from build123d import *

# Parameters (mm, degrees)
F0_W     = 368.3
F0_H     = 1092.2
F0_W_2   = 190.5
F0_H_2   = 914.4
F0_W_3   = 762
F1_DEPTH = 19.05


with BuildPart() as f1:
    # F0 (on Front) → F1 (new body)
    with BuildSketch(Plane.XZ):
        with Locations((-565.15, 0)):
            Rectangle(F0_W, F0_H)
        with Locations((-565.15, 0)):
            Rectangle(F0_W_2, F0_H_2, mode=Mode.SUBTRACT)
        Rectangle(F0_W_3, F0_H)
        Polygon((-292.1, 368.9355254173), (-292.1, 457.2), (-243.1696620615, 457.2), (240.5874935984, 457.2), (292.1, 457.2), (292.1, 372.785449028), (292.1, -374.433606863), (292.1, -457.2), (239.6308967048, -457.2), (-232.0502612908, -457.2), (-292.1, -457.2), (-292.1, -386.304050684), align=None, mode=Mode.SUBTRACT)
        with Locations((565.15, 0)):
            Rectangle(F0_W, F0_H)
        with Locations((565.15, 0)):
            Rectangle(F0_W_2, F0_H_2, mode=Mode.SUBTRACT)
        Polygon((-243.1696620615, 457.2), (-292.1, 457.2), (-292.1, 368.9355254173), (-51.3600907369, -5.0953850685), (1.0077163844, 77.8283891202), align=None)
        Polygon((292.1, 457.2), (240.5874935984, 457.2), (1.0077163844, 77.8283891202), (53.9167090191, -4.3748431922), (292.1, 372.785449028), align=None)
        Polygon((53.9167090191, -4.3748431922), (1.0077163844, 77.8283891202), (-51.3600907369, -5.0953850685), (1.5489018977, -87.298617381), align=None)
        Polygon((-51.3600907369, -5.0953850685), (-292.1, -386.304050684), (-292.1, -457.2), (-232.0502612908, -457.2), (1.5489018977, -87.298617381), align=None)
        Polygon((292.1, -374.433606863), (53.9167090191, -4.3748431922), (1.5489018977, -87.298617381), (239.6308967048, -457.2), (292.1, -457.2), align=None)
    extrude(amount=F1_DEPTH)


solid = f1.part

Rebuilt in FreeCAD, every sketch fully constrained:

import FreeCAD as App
import Part
import Sketcher
from FreeCAD import Vector
Q = App.Units.Quantity

doc = App.newDocument("Part")
body = doc.addObject("PartDesign::Body", "Body")

sketch1 = body.newObject("Sketcher::SketchObject", "Sketch")
sketch1.AttachmentSupport = (doc.getObject("XZ_Plane"), [""])
sketch1.MapMode = "FlatFace"
sketch1.addGeometry([
    Part.LineSegment(Vector(-749, 546, 0), Vector(-749, -546, 0)),
    Part.LineSegment(Vector(-749, -546, 0), Vector(749, -546, 0)),
    Part.LineSegment(Vector(749, -546, 0), Vector(749, 546, 0)),
    Part.LineSegment(Vector(749, 546, 0), Vector(-749, 546, 0)),
    Part.LineSegment(Vector(-292, 369, 0), Vector(-51, -5, 0)),
    Part.LineSegment(Vector(-51, -5, 0), Vector(-292, -386, 0)),
    Part.LineSegment(Vector(-292, -386, 0), Vector(-292, 369, 0)),
    Part.LineSegment(Vector(292, 373, 0), Vector(292, -374, 0)),
    Part.LineSegment(Vector(292, -374, 0), Vector(54, -4, 0)),
    Part.LineSegment(Vector(54, -4, 0), Vector(292, 373, 0)),
    Part.LineSegment(Vector(240, -457, 0), Vector(-232, -457, 0)),
    Part.LineSegment(Vector(-232, -457, 0), Vector(2, -87, 0)),
    Part.LineSegment(Vector(2, -87, 0), Vector(240, -457, 0)),
    Part.LineSegment(Vector(-470, -457, 0), Vector(-660, -457, 0)),
    Part.LineSegment(Vector(-660, -457, 0), Vector(-660, 457, 0)),
    Part.LineSegment(Vector(-660, 457, 0), Vector(-470, 457, 0)),
    Part.LineSegment(Vector(-470, 457, 0), Vector(-470, -457, 0)),
    Part.LineSegment(Vector(241, 457, 0), Vector(1, 78, 0)),
    Part.LineSegment(Vector(1, 78, 0), Vector(-243, 457, 0)),
    Part.LineSegment(Vector(-243, 457, 0), Vector(241, 457, 0)),
    Part.LineSegment(Vector(660, -457, 0), Vector(470, -457, 0)),
    Part.LineSegment(Vector(470, -457, 0), Vector(470, 457, 0)),
    Part.LineSegment(Vector(470, 457, 0), Vector(660, 457, 0)),
    Part.LineSegment(Vector(660, 457, 0), Vector(660, -457, 0)),
], False)
sketch1.addConstraint([
    Sketcher.Constraint("Coincident", 0, 2, 1, 1),
    Sketcher.Constraint("Coincident", 1, 2, 2, 1),
    Sketcher.Constraint("Coincident", 2, 2, 3, 1),
    Sketcher.Constraint("Coincident", 3, 2, 0, 1),
    Sketcher.Constraint("Coincident", 4, 2, 5, 1),
    Sketcher.Constraint("Coincident", 5, 2, 6, 1),
    Sketcher.Constraint("Coincident", 6, 2, 4, 1),
    Sketcher.Constraint("Coincident", 7, 2, 8, 1),
    Sketcher.Constraint("Coincident", 8, 2, 9, 1),
    Sketcher.Constraint("Coincident", 9, 2, 7, 1),
    Sketcher.Constraint("Coincident", 10, 2, 11, 1),
    Sketcher.Constraint("Coincident", 11, 2, 12, 1),
    Sketcher.Constraint("Coincident", 12, 2, 10, 1),
    Sketcher.Constraint("Coincident", 13, 2, 14, 1),
    Sketcher.Constraint("Coincident", 14, 2, 15, 1),
    Sketcher.Constraint("Coincident", 15, 2, 16, 1),
    Sketcher.Constraint("Coincident", 16, 2, 13, 1),
    Sketcher.Constraint("Coincident", 17, 2, 18, 1),
    Sketcher.Constraint("Coincident", 18, 2, 19, 1),
    Sketcher.Constraint("Coincident", 19, 2, 17, 1),
    Sketcher.Constraint("Coincident", 20, 2, 21, 1),
    Sketcher.Constraint("Coincident", 21, 2, 22, 1),
    Sketcher.Constraint("Coincident", 22, 2, 23, 1),
    Sketcher.Constraint("Coincident", 23, 2, 20, 1),
    Sketcher.Constraint("Vertical", 0),
    Sketcher.Constraint("Horizontal", 1),
    Sketcher.Constraint("Vertical", 2),
    Sketcher.Constraint("Horizontal", 3),
    Sketcher.Constraint("Vertical", 6),
    Sketcher.Constraint("Vertical", 7),
    Sketcher.Constraint("Horizontal", 10),
    Sketcher.Constraint("Horizontal", 13),
    Sketcher.Constraint("Vertical", 14),
    Sketcher.Constraint("Horizontal", 15),
    Sketcher.Constraint("Vertical", 16),
    Sketcher.Constraint("Horizontal", 19),
    Sketcher.Constraint("Horizontal", 20),
    Sketcher.Constraint("Vertical", 21),
    Sketcher.Constraint("Horizontal", 22),
    Sketcher.Constraint("Vertical", 23),
    Sketcher.Constraint("Symmetric", 0, 2, 2, 2, -1, 1),
    Sketcher.Constraint("Symmetric", 15, 2, 20, 2, -1, 1),
    Sketcher.Constraint("Symmetric", 13, 2, 22, 2, -1, 1),
    Sketcher.Constraint("Parallel", 4, 8),
    Sketcher.Constraint("Parallel", 5, 9),
    Sketcher.Constraint("Parallel", 9, 11),
    Sketcher.Constraint("Parallel", 8, 12),
    Sketcher.Constraint("Parallel", 11, 17),
    Sketcher.Constraint("Parallel", 12, 18),
    Sketcher.Constraint("Horizontal", 12, 2, 13, 2),
    Sketcher.Constraint("Horizontal", 15, 2, 18, 2),
    Sketcher.Constraint("Horizontal", 16, 2, 20, 2),
    Sketcher.Constraint("DistanceX", 1, 1, 1, 2, Q("59 in")),
    Sketcher.Constraint("DistanceY", 0, 2, 0, 1, Q("43 in")),
    Sketcher.Constraint("DistanceY", 14, 1, 14, 2, Q("36 in")),
    Sketcher.Constraint("DistanceX", 13, 2, 13, 1, Q("7.5 in")),
    Sketcher.Constraint("DistanceX", 13, 2, -1, 1, Q("26 in")),
    Sketcher.Constraint("DistanceX", 0, 2, 5, 2, Q("18 in")),
    Sketcher.Constraint("DistanceX", 7, 2, 1, 2, Q("18 in")),
    Sketcher.Constraint("DistanceX", -1, 1, 11, 2, Q("1.548902 mm")),
    Sketcher.Constraint("DistanceX", 4, 2, 8, 2, Q("105.2768 mm")),
    Sketcher.Constraint("Distance", 5, Q("450.861121 mm")),
    Sketcher.Constraint("Distance", 9, Q("446.07305 mm")),
    Sketcher.Constraint("Distance", 11, Q("437.487831 mm")),
    Sketcher.Constraint("Distance", 17, Q("448.688409 mm")),
    Sketcher.Constraint("DistanceX", 10, 2, 10, 1, Q("471.681158 mm")),
    Sketcher.Constraint("DistanceY", 5, 2, -1, 1, Q("386.304051 mm")),
    Sketcher.Constraint("DistanceY", -1, 1, 9, 2, Q("372.785449 mm")),
    Sketcher.Constraint("DistanceX", 18, 2, 4, 2, Q("191.809571 mm")),
])
pad1 = body.newObject("PartDesign::Pad", "Pad")
pad1.Profile = sketch1
pad1.Length = Q("0.75 in")

doc.recompute()
